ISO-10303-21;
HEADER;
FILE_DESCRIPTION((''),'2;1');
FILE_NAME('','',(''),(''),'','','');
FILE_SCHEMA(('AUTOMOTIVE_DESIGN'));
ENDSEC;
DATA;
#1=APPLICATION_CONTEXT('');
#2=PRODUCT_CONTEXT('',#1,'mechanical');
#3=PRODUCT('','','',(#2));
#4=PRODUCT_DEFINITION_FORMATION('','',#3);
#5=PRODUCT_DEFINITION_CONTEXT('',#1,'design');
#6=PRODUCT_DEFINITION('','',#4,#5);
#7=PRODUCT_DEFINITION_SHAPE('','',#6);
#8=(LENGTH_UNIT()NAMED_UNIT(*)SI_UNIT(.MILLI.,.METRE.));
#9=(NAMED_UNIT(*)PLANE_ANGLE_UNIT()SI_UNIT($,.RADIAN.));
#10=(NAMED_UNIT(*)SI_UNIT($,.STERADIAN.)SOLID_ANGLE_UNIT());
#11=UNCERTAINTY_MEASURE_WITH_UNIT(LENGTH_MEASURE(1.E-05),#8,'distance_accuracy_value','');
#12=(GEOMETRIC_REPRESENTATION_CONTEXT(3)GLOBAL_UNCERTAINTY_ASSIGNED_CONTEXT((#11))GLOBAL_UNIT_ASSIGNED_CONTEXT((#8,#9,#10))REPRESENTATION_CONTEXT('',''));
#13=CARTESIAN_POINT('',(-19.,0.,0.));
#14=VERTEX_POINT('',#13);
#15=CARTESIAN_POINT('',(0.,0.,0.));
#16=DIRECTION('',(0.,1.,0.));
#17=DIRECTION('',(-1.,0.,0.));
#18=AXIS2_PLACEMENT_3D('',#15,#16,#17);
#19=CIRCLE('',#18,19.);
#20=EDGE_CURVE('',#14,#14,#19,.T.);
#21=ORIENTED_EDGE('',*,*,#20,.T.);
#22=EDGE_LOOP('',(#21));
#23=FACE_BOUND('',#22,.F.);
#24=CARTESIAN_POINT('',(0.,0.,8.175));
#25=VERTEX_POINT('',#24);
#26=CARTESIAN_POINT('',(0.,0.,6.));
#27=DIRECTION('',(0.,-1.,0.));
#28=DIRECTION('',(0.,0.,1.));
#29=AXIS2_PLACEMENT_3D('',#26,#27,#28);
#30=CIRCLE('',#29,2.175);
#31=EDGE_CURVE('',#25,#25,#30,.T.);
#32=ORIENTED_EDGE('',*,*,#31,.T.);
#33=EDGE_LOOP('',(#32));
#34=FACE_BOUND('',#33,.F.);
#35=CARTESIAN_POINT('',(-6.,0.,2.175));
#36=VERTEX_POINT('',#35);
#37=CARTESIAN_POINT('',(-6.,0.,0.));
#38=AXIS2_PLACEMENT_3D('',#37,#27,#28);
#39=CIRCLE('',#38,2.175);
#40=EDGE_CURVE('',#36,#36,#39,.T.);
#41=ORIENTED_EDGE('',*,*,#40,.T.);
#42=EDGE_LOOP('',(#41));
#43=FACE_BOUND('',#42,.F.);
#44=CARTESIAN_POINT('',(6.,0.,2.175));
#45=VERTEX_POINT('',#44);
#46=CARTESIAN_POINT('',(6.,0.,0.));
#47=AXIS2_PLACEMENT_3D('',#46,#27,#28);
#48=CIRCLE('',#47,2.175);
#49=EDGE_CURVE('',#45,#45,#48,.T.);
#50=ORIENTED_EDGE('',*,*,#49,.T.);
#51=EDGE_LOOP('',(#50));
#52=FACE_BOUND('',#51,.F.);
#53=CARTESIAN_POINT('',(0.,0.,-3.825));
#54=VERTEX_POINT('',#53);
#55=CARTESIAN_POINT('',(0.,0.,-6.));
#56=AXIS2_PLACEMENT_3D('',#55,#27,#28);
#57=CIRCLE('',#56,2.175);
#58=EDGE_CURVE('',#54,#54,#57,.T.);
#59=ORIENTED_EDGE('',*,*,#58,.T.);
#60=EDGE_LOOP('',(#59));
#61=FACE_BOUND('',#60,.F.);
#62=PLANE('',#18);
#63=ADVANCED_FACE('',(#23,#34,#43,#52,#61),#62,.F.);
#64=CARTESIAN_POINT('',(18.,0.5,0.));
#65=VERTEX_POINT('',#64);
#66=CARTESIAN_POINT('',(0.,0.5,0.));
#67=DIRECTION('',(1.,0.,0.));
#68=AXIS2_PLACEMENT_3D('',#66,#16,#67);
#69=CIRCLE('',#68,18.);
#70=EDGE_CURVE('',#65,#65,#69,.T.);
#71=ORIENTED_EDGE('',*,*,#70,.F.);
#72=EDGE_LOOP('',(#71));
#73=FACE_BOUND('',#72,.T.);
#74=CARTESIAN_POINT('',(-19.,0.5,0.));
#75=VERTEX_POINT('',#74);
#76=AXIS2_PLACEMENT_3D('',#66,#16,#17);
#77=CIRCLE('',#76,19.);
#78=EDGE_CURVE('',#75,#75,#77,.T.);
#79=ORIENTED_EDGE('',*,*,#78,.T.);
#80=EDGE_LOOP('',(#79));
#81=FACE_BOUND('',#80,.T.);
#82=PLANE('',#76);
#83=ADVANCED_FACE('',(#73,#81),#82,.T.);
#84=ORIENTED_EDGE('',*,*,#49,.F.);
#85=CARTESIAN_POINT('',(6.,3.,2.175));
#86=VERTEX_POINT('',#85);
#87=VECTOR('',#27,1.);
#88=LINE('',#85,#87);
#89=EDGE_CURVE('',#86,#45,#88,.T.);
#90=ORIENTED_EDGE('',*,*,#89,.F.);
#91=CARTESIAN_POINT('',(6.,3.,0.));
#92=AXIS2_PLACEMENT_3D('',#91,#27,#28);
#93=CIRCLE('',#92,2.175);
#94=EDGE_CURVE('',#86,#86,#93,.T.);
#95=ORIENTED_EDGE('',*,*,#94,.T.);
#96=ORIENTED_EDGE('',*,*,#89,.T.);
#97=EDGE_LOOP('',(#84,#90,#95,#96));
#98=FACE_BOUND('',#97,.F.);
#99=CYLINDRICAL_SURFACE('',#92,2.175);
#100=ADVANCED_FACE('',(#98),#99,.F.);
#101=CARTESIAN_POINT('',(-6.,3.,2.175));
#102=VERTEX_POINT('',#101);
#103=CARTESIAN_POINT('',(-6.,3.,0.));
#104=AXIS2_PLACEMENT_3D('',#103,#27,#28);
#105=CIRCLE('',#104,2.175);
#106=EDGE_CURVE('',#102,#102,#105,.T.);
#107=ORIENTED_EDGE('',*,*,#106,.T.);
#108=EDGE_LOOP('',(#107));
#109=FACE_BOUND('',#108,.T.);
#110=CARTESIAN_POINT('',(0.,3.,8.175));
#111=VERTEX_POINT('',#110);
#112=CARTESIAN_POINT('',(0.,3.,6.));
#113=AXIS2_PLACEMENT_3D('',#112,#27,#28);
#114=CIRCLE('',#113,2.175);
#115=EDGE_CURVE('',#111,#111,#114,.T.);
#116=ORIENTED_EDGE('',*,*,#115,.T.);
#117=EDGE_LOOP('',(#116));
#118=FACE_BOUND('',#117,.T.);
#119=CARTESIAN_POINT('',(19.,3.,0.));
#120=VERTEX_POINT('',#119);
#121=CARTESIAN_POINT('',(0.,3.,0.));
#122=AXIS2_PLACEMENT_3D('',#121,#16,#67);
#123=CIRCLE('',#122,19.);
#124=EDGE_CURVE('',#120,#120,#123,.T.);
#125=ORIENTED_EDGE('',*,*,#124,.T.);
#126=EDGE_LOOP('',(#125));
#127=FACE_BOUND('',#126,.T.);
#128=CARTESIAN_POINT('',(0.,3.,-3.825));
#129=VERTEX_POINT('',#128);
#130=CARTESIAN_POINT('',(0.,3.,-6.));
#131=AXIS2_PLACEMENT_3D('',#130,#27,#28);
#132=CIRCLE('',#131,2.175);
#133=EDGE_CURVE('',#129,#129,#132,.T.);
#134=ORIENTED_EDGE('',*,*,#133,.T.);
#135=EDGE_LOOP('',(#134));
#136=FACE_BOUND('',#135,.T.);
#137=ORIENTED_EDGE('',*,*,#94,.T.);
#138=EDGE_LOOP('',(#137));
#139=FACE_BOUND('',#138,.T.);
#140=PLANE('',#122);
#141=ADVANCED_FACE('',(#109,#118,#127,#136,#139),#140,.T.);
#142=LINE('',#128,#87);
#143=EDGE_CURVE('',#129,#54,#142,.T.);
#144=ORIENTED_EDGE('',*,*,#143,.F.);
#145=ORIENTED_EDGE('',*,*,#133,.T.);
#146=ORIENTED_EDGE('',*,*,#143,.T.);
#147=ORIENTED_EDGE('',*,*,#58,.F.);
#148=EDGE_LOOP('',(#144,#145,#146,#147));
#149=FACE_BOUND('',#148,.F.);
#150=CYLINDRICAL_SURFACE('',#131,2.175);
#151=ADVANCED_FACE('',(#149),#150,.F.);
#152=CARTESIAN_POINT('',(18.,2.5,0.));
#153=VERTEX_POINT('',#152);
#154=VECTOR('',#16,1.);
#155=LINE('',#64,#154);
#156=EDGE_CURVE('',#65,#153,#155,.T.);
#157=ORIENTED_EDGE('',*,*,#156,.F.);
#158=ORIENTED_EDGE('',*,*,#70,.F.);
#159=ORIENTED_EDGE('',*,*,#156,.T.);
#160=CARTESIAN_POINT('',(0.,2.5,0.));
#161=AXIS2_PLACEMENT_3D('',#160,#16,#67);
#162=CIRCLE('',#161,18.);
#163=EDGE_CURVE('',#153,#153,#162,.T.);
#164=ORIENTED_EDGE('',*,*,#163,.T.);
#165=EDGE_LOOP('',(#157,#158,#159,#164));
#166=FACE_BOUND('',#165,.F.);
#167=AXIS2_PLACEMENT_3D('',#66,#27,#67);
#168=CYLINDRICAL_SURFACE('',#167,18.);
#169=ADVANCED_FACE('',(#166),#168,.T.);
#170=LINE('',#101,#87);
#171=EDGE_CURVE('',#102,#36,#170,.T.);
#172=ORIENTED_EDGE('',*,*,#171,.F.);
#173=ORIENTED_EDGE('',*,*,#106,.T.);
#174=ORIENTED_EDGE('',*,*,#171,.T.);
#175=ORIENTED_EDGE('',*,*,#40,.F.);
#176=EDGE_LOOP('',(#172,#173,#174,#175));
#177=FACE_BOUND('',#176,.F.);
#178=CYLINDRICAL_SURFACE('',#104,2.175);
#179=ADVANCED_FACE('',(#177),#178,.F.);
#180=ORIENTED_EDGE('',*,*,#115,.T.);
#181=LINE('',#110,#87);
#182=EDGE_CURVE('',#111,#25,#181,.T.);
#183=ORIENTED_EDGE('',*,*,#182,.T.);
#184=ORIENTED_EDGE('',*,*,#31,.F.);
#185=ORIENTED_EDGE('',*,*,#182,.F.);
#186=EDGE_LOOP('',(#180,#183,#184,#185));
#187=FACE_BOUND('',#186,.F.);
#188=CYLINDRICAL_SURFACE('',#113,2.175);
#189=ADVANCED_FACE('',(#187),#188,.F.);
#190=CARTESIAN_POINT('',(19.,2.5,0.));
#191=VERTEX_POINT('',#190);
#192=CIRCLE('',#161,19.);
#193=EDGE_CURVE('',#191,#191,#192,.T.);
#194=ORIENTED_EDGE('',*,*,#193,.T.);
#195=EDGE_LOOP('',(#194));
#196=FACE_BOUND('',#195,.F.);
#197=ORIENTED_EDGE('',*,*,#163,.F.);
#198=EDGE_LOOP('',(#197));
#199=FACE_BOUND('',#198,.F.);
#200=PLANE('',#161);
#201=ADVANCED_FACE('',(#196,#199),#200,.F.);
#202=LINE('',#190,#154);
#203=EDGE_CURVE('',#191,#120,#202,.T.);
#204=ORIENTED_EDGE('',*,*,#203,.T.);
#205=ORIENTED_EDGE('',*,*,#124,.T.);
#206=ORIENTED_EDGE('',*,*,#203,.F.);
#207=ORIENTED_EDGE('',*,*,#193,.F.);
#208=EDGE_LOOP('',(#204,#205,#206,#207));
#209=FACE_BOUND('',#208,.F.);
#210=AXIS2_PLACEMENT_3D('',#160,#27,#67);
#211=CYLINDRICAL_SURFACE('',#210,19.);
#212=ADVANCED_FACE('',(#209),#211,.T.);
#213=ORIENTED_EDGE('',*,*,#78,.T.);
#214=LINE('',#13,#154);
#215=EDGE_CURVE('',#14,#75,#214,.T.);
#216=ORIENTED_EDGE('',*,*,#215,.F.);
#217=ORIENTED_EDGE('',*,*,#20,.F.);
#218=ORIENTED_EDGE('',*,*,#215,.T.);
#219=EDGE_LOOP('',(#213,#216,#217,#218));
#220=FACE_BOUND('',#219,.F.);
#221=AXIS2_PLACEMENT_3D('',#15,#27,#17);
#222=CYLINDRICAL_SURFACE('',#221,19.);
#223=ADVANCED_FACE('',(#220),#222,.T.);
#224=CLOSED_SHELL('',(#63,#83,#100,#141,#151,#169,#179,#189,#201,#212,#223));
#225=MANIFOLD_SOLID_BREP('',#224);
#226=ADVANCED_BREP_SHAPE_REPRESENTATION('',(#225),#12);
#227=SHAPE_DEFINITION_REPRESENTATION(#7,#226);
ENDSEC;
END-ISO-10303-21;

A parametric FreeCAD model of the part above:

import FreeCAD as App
import Part
import Sketcher

V = App.Vector

doc = App.newDocument("Part")
body = doc.addObject("PartDesign::Body", "Body")

# Sketch on XZ plane
sketch1 = doc.addObject("Sketcher::SketchObject", "Sketch")
body.addObject(sketch1)
sketch1.AttachmentSupport = (doc.XZ_Plane, [""])
sketch1.MapMode = "FlatFace"
sketch1.addGeometry(Part.Circle(V(0, 0, 0), V(0, 0, 1), 19), False)
sketch1.addConstraint([
    Sketcher.Constraint("Coincident", 0, 3, -1, 1),
    Sketcher.Constraint("Diameter", 0, 38.0),
])
pad1 = doc.addObject("PartDesign::Pad", "Pad")
body.addObject(pad1)
pad1.Profile = sketch1
pad1.Length = 0.5
pad1.Reversed = True

# Sketch on XZ plane
sketch2 = doc.addObject("Sketcher::SketchObject", "Sketch001")
body.addObject(sketch2)
sketch2.AttachmentSupport = (doc.XZ_Plane, [""])
sketch2.MapMode = "FlatFace"
sketch2.AttachmentOffset = App.Placement(V(0, 0, -0.5), App.Rotation())
sketch2.addGeometry(Part.Circle(V(0, 0, 0), V(0, 0, 1), 18), False)
sketch2.addConstraint([
    Sketcher.Constraint("Coincident", 0, 3, -1, 1),
    Sketcher.Constraint("Diameter", 0, 36.0),
])
pad2 = doc.addObject("PartDesign::Pad", "Pad001")
body.addObject(pad2)
pad2.Profile = sketch2
pad2.Length = 2
pad2.Reversed = True

# Sketch on XZ plane
sketch3 = doc.addObject("Sketcher::SketchObject", "Sketch002")
body.addObject(sketch3)
sketch3.AttachmentSupport = (doc.XZ_Plane, [""])
sketch3.MapMode = "FlatFace"
sketch3.AttachmentOffset = App.Placement(V(0, 0, -2.5), App.Rotation())
sketch3.addGeometry(Part.Circle(V(0, 0, 0), V(0, 0, 1), 19), False)
sketch3.addConstraint([
    Sketcher.Constraint("Coincident", 0, 3, -1, 1),
    Sketcher.Constraint("Diameter", 0, 38.0),
])
pad3 = doc.addObject("PartDesign::Pad", "Pad002")
body.addObject(pad3)
pad3.Profile = sketch3
pad3.Length = 0.5
pad3.Reversed = True

# Sketch on XZ plane
sketch4 = doc.addObject("Sketcher::SketchObject", "Sketch003")
body.addObject(sketch4)
sketch4.AttachmentSupport = (doc.XZ_Plane, [""])
sketch4.MapMode = "FlatFace"
sketch4.AttachmentOffset = App.Placement(V(0, 0, -3), App.Rotation())
sketch4.addGeometry([
    Part.Circle(V(6, 0, 0), V(0, 0, 1), 2.2),
    Part.Circle(V(0, 6, 0), V(0, 0, 1), 2.2),
    Part.Circle(V(-6, 0, 0), V(0, 0, 1), 2.2),
    Part.Circle(V(0, -6, 0), V(0, 0, 1), 2.2),
], False)
sketch4.addConstraint([
    Sketcher.Constraint("Equal", 0, 1),
    Sketcher.Constraint("Equal", 1, 2),
    Sketcher.Constraint("Equal", 2, 3),
    Sketcher.Constraint("Symmetric", 0, 3, 2, 3, -1, 1),
    Sketcher.Constraint("Symmetric", 1, 3, 3, 3, -1, 1),
    Sketcher.Constraint("PointOnObject", 0, 3, -1),
    Sketcher.Constraint("PointOnObject", 1, 3, -2),
    Sketcher.Constraint("Diameter", 0, 4.35),
    Sketcher.Constraint("DistanceX", -1, 1, 0, 3, 6.0),
    Sketcher.Constraint("DistanceY", -1, 1, 1, 3, 6.0),
])
doc.recompute()
hole = doc.addObject("PartDesign::Hole", "Hole")
body.addObject(hole)
hole.Profile = sketch4
hole.ThreadType = "None"
hole.Diameter = 4.35
hole.DepthType = "ThroughAll"
hole.Reversed = True

doc.recompute()
